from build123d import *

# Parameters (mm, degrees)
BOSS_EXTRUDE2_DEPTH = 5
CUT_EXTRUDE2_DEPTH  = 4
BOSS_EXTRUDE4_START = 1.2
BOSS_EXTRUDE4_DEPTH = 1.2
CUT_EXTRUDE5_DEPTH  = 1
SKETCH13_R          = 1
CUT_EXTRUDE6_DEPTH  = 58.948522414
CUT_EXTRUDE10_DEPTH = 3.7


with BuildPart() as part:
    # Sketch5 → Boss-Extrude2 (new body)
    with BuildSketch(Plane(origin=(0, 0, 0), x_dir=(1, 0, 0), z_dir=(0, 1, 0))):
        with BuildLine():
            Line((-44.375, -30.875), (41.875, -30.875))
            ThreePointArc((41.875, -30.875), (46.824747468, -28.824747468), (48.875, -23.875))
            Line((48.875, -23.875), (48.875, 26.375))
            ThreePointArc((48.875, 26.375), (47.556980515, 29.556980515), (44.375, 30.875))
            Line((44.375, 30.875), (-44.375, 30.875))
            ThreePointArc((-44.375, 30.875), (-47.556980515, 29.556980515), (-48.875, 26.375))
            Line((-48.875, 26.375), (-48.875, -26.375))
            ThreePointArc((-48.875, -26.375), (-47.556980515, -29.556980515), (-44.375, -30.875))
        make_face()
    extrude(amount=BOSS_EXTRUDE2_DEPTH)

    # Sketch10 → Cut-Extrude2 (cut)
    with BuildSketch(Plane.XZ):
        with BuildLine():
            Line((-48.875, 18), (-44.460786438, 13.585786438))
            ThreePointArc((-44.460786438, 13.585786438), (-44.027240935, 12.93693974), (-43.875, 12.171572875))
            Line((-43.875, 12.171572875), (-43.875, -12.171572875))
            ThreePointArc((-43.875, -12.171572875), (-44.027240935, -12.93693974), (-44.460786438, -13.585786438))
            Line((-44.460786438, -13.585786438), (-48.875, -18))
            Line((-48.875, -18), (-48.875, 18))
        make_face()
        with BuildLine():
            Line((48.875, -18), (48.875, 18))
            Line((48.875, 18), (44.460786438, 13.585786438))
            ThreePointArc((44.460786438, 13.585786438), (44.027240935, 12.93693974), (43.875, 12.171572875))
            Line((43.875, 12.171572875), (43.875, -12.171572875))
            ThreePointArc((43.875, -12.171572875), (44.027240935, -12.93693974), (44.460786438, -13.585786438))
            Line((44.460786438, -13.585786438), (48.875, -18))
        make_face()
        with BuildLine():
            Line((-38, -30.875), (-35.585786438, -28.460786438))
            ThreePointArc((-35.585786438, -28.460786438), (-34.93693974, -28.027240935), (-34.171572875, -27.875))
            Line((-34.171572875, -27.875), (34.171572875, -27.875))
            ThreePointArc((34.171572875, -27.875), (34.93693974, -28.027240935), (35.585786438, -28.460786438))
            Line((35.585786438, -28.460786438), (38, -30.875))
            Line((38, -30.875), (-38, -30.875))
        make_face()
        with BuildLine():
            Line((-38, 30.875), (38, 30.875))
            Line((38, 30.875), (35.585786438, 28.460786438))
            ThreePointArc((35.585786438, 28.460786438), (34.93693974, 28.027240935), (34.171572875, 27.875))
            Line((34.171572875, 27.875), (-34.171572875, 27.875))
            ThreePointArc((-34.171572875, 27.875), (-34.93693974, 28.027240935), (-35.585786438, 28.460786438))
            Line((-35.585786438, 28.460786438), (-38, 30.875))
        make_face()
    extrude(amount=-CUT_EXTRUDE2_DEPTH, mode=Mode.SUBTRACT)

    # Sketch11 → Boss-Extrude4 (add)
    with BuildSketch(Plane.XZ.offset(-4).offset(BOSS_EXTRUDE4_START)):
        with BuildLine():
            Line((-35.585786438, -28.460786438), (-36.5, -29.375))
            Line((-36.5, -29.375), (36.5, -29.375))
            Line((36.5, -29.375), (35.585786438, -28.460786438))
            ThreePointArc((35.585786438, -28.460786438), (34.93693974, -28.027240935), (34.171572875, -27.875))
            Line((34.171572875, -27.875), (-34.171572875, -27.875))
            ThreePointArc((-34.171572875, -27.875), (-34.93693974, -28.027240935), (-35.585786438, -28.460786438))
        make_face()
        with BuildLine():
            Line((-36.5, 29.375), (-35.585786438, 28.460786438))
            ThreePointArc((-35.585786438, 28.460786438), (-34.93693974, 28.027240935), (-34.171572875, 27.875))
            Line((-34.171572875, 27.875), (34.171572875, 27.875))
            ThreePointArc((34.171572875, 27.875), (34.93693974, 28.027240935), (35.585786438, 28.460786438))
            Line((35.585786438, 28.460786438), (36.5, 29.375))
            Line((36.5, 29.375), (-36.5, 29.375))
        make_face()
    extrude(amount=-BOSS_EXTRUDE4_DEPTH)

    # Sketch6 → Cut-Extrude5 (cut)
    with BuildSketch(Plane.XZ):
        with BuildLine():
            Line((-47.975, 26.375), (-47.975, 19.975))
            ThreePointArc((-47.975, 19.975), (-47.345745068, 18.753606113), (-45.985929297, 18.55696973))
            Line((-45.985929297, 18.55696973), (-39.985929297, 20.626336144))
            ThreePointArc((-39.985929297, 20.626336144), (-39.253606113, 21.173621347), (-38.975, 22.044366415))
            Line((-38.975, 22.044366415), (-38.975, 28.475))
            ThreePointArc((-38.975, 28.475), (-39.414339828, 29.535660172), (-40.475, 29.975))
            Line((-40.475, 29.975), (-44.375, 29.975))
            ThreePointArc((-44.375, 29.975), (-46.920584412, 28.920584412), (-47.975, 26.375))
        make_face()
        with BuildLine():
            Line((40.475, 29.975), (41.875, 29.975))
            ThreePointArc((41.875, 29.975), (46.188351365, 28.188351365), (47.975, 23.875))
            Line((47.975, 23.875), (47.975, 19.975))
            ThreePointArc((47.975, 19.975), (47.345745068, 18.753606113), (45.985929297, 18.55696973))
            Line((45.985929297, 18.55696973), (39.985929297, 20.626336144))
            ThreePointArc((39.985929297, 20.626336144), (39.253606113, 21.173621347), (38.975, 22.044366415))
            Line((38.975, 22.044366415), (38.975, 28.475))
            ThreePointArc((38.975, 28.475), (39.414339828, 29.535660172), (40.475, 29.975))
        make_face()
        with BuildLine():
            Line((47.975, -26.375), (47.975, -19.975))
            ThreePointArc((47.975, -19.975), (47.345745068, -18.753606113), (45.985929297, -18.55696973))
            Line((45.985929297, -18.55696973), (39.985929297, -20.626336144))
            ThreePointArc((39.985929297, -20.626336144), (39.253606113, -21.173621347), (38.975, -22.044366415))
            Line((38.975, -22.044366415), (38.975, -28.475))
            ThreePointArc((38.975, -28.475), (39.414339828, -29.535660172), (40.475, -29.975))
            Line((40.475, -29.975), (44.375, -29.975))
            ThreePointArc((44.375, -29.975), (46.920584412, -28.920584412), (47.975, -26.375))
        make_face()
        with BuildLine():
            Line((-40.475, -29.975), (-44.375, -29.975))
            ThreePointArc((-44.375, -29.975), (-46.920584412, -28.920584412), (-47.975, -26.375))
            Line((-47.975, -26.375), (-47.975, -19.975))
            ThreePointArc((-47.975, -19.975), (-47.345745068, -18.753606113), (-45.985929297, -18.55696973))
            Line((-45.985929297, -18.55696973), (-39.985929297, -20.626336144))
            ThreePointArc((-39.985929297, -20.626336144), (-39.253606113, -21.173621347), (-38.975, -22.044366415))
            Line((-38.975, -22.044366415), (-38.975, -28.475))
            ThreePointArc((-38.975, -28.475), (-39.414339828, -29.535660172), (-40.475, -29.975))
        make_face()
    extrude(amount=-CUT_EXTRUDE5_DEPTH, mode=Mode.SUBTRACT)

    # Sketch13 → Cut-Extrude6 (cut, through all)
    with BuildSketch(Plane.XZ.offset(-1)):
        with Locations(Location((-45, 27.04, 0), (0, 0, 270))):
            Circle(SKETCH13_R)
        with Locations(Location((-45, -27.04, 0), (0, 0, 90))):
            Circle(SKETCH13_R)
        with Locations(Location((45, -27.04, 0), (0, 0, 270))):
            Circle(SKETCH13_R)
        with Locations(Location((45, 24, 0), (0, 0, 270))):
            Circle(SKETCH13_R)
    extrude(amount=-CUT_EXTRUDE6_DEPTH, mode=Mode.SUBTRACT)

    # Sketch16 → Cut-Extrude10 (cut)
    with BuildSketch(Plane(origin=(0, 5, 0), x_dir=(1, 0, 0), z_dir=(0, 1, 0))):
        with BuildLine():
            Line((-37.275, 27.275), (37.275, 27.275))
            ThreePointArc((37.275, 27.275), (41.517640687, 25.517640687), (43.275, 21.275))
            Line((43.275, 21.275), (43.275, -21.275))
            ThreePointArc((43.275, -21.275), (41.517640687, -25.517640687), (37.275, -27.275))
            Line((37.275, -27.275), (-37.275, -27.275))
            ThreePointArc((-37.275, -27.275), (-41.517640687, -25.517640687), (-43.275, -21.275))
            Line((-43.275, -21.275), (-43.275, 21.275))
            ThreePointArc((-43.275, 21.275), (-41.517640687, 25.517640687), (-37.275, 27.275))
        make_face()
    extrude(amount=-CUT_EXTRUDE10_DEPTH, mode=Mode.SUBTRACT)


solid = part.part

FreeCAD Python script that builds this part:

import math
import FreeCAD as App
import Part
import Sketcher
from FreeCAD import Vector

doc = App.newDocument("Part")
body = doc.addObject("PartDesign::Body", "Body")

# Sketch on XZ plane
sketch1 = doc.addObject("Sketcher::SketchObject", "Sketch")
body.addObject(sketch1)
sketch1.AttachmentSupport = (doc.XZ_Plane, [""])
sketch1.MapMode = "FlatFace"
sketch1.addGeometry(Part.LineSegment(Vector(-44.4, 30.9, 0), Vector(41.9, 30.9, 0)), False)
sketch1.addGeometry(Part.ArcOfCircle(Part.Circle(Vector(41.9, 23.9, 0), Vector(0, 0, 1), 7), math.radians(0), math.radians(90)), False)
sketch1.addGeometry(Part.LineSegment(Vector(48.9, 23.9, 0), Vector(48.9, -26.4, 0)), False)
sketch1.addGeometry(Part.ArcOfCircle(Part.Circle(Vector(44.4, -26.4, 0), Vector(0, 0, 1), 4.5), math.radians(-90), math.radians(0)), False)
sketch1.addGeometry(Part.LineSegment(Vector(44.4, -30.9, 0), Vector(-44.4, -30.9, 0)), False)
sketch1.addGeometry(Part.ArcOfCircle(Part.Circle(Vector(-44.4, -26.4, 0), Vector(0, 0, 1), 4.5), math.radians(-180), math.radians(-90)), False)
sketch1.addGeometry(Part.LineSegment(Vector(-48.9, -26.4, 0), Vector(-48.9, 26.4, 0)), False)
sketch1.addGeometry(Part.ArcOfCircle(Part.Circle(Vector(-44.4, 26.4, 0), Vector(0, 0, 1), 4.5), math.radians(90), math.radians(180)), False)
sketch1.addConstraint(Sketcher.Constraint("Tangent", 0, 2, 1, 2))
sketch1.addConstraint(Sketcher.Constraint("Tangent", 1, 1, 2, 1))
sketch1.addConstraint(Sketcher.Constraint("Tangent", 2, 2, 3, 2))
sketch1.addConstraint(Sketcher.Constraint("Tangent", 3, 1, 4, 1))
sketch1.addConstraint(Sketcher.Constraint("Tangent", 4, 2, 5, 2))
sketch1.addConstraint(Sketcher.Constraint("Tangent", 5, 1, 6, 1))
sketch1.addConstraint(Sketcher.Constraint("Tangent", 6, 2, 7, 2))
sketch1.addConstraint(Sketcher.Constraint("Tangent", 7, 1, 0, 1))
sketch1.addConstraint(Sketcher.Constraint("Horizontal", 0))
sketch1.addConstraint(Sketcher.Constraint("Vertical", 2))
sketch1.addConstraint(Sketcher.Constraint("Horizontal", 4))
sketch1.addConstraint(Sketcher.Constraint("Vertical", 6))
sketch1.addConstraint(Sketcher.Constraint("Equal", 3, 5))
sketch1.addConstraint(Sketcher.Constraint("Equal", 5, 7))
sketch1.addConstraint(Sketcher.Constraint("Symmetric", 3, 3, 7, 3, -1, 1))
sketch1.addConstraint(Sketcher.Constraint("Radius", 1, 7.0))
sketch1.addConstraint(Sketcher.Constraint("Radius", 3, 4.5))
sketch1.addConstraint(Sketcher.Constraint("DistanceX", 0, 1, 0, 2, 86.25))
sketch1.addConstraint(Sketcher.Constraint("DistanceY", 2, 2, 2, 1, 50.25))
pad1 = doc.addObject("PartDesign::Pad", "Pad")
body.addObject(pad1)
pad1.Profile = sketch1
pad1.Length = 5
pad1.Reversed = True

# Sketch on XZ plane
sketch2 = doc.addObject("Sketcher::SketchObject", "Sketch001")
body.addObject(sketch2)
sketch2.AttachmentSupport = (doc.XZ_Plane, [""])
sketch2.MapMode = "FlatFace"
sketch2.addGeometry(Part.LineSegment(Vector(-44.5, 13.6, 0), Vector(-48.9, 18, 0)), False)
sketch2.addGeometry(Part.LineSegment(Vector(-48.9, 18, 0), Vector(-48.9, -18, 0)), False)
sketch2.addGeometry(Part.LineSegment(Vector(-48.9, -18, 0), Vector(-44.5, -13.6, 0)), False)
sketch2.addGeometry(Part.ArcOfCircle(Part.Circle(Vector(-45.9, -12.2, 0), Vector(0, 0, 1), 2), math.radians(-45), math.radians(0)), False)
sketch2.addGeometry(Part.LineSegment(Vector(-43.9, -12.2, 0), Vector(-43.9, 12.2, 0)), False)
sketch2.addGeometry(Part.ArcOfCircle(Part.Circle(Vector(-45.9, 12.2, 0), Vector(0, 0, 1), 2), math.radians(0), math.radians(45)), False)
sketch2.addGeometry(Part.LineSegment(Vector(48.9, -18, 0), Vector(48.9, 18, 0)), False)
sketch2.addGeometry(Part.LineSegment(Vector(48.9, 18, 0), Vector(44.5, 13.6, 0)), False)
sketch2.addGeometry(Part.ArcOfCircle(Part.Circle(Vector(45.9, 12.2, 0), Vector(0, 0, 1), 2), math.radians(135), math.radians(180)), False)
sketch2.addGeometry(Part.LineSegment(Vector(43.9, 12.2, 0), Vector(43.9, -12.2, 0)), False)
sketch2.addGeometry(Part.ArcOfCircle(Part.Circle(Vector(45.9, -12.2, 0), Vector(0, 0, 1), 2), math.radians(180), math.radians(225)), False)
sketch2.addGeometry(Part.LineSegment(Vector(44.5, -13.6, 0), Vector(48.9, -18, 0)), False)
sketch2.addGeometry(Part.LineSegment(Vector(-35.6, -28.5, 0), Vector(-38, -30.9, 0)), False)
sketch2.addGeometry(Part.LineSegment(Vector(-38, -30.9, 0), Vector(38, -30.9, 0)), False)
sketch2.addGeometry(Part.LineSegment(Vector(38, -30.9, 0), Vector(35.6, -28.5, 0)), False)
sketch2.addGeometry(Part.ArcOfCircle(Part.Circle(Vector(34.2, -29.9, 0), Vector(0, 0, 1), 2), math.radians(45), math.radians(90)), False)
sketch2.addGeometry(Part.LineSegment(Vector(34.2, -27.9, 0), Vector(-34.2, -27.9, 0)), False)
sketch2.addGeometry(Part.ArcOfCircle(Part.Circle(Vector(-34.2, -29.9, 0), Vector(0, 0, 1), 2), math.radians(90), math.radians(135)), False)
sketch2.addGeometry(Part.LineSegment(Vector(38, 30.9, 0), Vector(-38, 30.9, 0)), False)
sketch2.addGeometry(Part.LineSegment(Vector(-38, 30.9, 0), Vector(-35.6, 28.5, 0)), False)
sketch2.addGeometry(Part.ArcOfCircle(Part.Circle(Vector(-34.2, 29.9, 0), Vector(0, 0, 1), 2), math.radians(-135), math.radians(-90)), False)
sketch2.addGeometry(Part.LineSegment(Vector(-34.2, 27.9, 0), Vector(34.2, 27.9, 0)), False)
sketch2.addGeometry(Part.ArcOfCircle(Part.Circle(Vector(34.2, 29.9, 0), Vector(0, 0, 1), 2), math.radians(-90), math.radians(-45)), False)
sketch2.addGeometry(Part.LineSegment(Vector(35.6, 28.5, 0), Vector(38, 30.9, 0)), False)
sketch2.addConstraint(Sketcher.Constraint("Coincident", 0, 2, 1, 1))
sketch2.addConstraint(Sketcher.Constraint("Coincident", 1, 2, 2, 1))
sketch2.addConstraint(Sketcher.Constraint("Tangent", 2, 2, 3, 1))
sketch2.addConstraint(Sketcher.Constraint("Tangent", 3, 2, 4, 1))
sketch2.addConstraint(Sketcher.Constraint("Tangent", 4, 2, 5, 1))
sketch2.addConstraint(Sketcher.Constraint("Tangent", 5, 2, 0, 1))
sketch2.addConstraint(Sketcher.Constraint("Coincident", 6, 2, 7, 1))
sketch2.addConstraint(Sketcher.Constraint("Tangent", 7, 2, 8, 1))
sketch2.addConstraint(Sketcher.Constraint("Tangent", 8, 2, 9, 1))
sketch2.addConstraint(Sketcher.Constraint("Tangent", 9, 2, 10, 1))
sketch2.addConstraint(Sketcher.Constraint("Tangent", 10, 2, 11, 1))
sketch2.addConstraint(Sketcher.Constraint("Coincident", 11, 2, 6, 1))
sketch2.addConstraint(Sketcher.Constraint("Coincident", 12, 2, 13, 1))
sketch2.addConstraint(Sketcher.Constraint("Coincident", 13, 2, 14, 1))
sketch2.addConstraint(Sketcher.Constraint("Tangent", 14, 2, 15, 1))
sketch2.addConstraint(Sketcher.Constraint("Tangent", 15, 2, 16, 1))
sketch2.addConstraint(Sketcher.Constraint("Tangent", 16, 2, 17, 1))
sketch2.addConstraint(Sketcher.Constraint("Tangent", 17, 2, 12, 1))
sketch2.addConstraint(Sketcher.Constraint("Coincident", 18, 2, 19, 1))
sketch2.addConstraint(Sketcher.Constraint("Tangent", 19, 2, 20, 1))
sketch2.addConstraint(Sketcher.Constraint("Tangent", 20, 2, 21, 1))
sketch2.addConstraint(Sketcher.Constraint("Tangent", 21, 2, 22, 1))
sketch2.addConstraint(Sketcher.Constraint("Tangent", 22, 2, 23, 1))
sketch2.addConstraint(Sketcher.Constraint("Coincident", 23, 2, 18, 1))
sketch2.addConstraint(Sketcher.Constraint("Vertical", 1))
sketch2.addConstraint(Sketcher.Constraint("Vertical", 4))
sketch2.addConstraint(Sketcher.Constraint("Vertical", 6))
sketch2.addConstraint(Sketcher.Constraint("Vertical", 9))
sketch2.addConstraint(Sketcher.Constraint("Horizontal", 13))
sketch2.addConstraint(Sketcher.Constraint("Horizontal", 16))
sketch2.addConstraint(Sketcher.Constraint("Horizontal", 18))
sketch2.addConstraint(Sketcher.Constraint("Horizontal", 21))
sketch2.addConstraint(Sketcher.Constraint("Equal", 3, 5))
sketch2.addConstraint(Sketcher.Constraint("Equal", 5, 8))
sketch2.addConstraint(Sketcher.Constraint("Equal", 8, 10))
sketch2.addConstraint(Sketcher.Constraint("Equal", 10, 15))
sketch2.addConstraint(Sketcher.Constraint("Equal", 15, 17))
sketch2.addConstraint(Sketcher.Constraint("Equal", 17, 20))
sketch2.addConstraint(Sketcher.Constraint("Equal", 20, 22))
sketch2.addConstraint(Sketcher.Constraint("Symmetric", 3, 3, 8, 3, -1, 1))
sketch2.addConstraint(Sketcher.Constraint("Symmetric", 15, 3, 20, 3, -1, 1))
sketch2.addConstraint(Sketcher.Constraint("Symmetric", 1, 2, 6, 2, -1, 1))
sketch2.addConstraint(Sketcher.Constraint("Symmetric", 5, 2, 10, 2, -1, 1))
sketch2.addConstraint(Sketcher.Constraint("Symmetric", 13, 2, 18, 2, -1, 1))
sketch2.addConstraint(Sketcher.Constraint("Symmetric", 17, 2, 22, 2, -1, 1))
sketch2.addConstraint(Sketcher.Constraint("Symmetric", 5, 2, 7, 2, -2))
sketch2.addConstraint(Sketcher.Constraint("Symmetric", 14, 2, 17, 2, -2))
sketch2.addConstraint(Sketcher.Constraint("Perpendicular", 0, 2))
sketch2.addConstraint(Sketcher.Constraint("Perpendicular", 11, 12))
sketch2.addConstraint(Sketcher.Constraint("Radius", 3, 2.0))
sketch2.addConstraint(Sketcher.Constraint("DistanceX", 13, 1, 13, 2, 76.0))
sketch2.addConstraint(Sketcher.Constraint("DistanceY", 1, 2, 1, 1, 36.0))
sketch2.addConstraint(Sketcher.Constraint("DistanceX", 0, 2, 5, 3, 3.0))
sketch2.addConstraint(Sketcher.Constraint("DistanceY", 12, 2, 17, 3, 1.0))
sketch2.addConstraint(Sketcher.Constraint("DistanceX", 5, 3, 8, 3, 91.75))
sketch2.addConstraint(Sketcher.Constraint("DistanceY", 17, 3, 20, 3, 59.75))
pocket1 = doc.addObject("PartDesign::Pocket", "Pocket")
body.addObject(pocket1)
pocket1.Profile = sketch2
pocket1.Length = 4

# Sketch on XZ plane
sketch3 = doc.addObject("Sketcher::SketchObject", "Sketch002")
body.addObject(sketch3)
sketch3.AttachmentSupport = (doc.XZ_Plane, [""])
sketch3.MapMode = "FlatFace"
sketch3.AttachmentOffset = App.Placement(Vector(0, 0, -2.8), App.Rotation())
sketch3.addGeometry(Part.LineSegment(Vector(-35.6, -28.5, 0), Vector(-36.5, -29.4, 0)), False)
sketch3.addGeometry(Part.LineSegment(Vector(-36.5, -29.4, 0), Vector(36.5, -29.4, 0)), False)
sketch3.addGeometry(Part.LineSegment(Vector(36.5, -29.4, 0), Vector(35.6, -28.5, 0)), False)
sketch3.addGeometry(Part.ArcOfCircle(Part.Circle(Vector(34.2, -29.9, 0), Vector(0, 0, 1), 2), math.radians(45), math.radians(90)), False)
sketch3.addGeometry(Part.LineSegment(Vector(34.2, -27.9, 0), Vector(-34.2, -27.9, 0)), False)
sketch3.addGeometry(Part.ArcOfCircle(Part.Circle(Vector(-34.2, -29.9, 0), Vector(0, 0, 1), 2), math.radians(90), math.radians(135)), False)
sketch3.addGeometry(Part.LineSegment(Vector(-36.5, 29.4, 0), Vector(-35.6, 28.5, 0)), False)
sketch3.addGeometry(Part.ArcOfCircle(Part.Circle(Vector(-34.2, 29.9, 0), Vector(0, 0, 1), 2), math.radians(-135), math.radians(-90)), False)
sketch3.addGeometry(Part.LineSegment(Vector(-34.2, 27.9, 0), Vector(34.2, 27.9, 0)), False)
sketch3.addGeometry(Part.ArcOfCircle(Part.Circle(Vector(34.2, 29.9, 0), Vector(0, 0, 1), 2), math.radians(-90), math.radians(-45)), False)
sketch3.addGeometry(Part.LineSegment(Vector(35.6, 28.5, 0), Vector(36.5, 29.4, 0)), False)
sketch3.addGeometry(Part.LineSegment(Vector(36.5, 29.4, 0), Vector(-36.5, 29.4, 0)), False)
sketch3.addConstraint(Sketcher.Constraint("Coincident", 0, 2, 1, 1))
sketch3.addConstraint(Sketcher.Constraint("Coincident", 1, 2, 2, 1))
sketch3.addConstraint(Sketcher.Constraint("Tangent", 2, 2, 3, 1))
sketch3.addConstraint(Sketcher.Constraint("Tangent", 3, 2, 4, 1))
sketch3.addConstraint(Sketcher.Constraint("Tangent", 4, 2, 5, 1))
sketch3.addConstraint(Sketcher.Constraint("Tangent", 5, 2, 0, 1))
sketch3.addConstraint(Sketcher.Constraint("Tangent", 6, 2, 7, 1))
sketch3.addConstraint(Sketcher.Constraint("Tangent", 7, 2, 8, 1))
sketch3.addConstraint(Sketcher.Constraint("Tangent", 8, 2, 9, 1))
sketch3.addConstraint(Sketcher.Constraint("Tangent", 9, 2, 10, 1))
sketch3.addConstraint(Sketcher.Constraint("Coincident", 10, 2, 11, 1))
sketch3.addConstraint(Sketcher.Constraint("Coincident", 11, 2, 6, 1))
sketch3.addConstraint(Sketcher.Constraint("Horizontal", 1))
sketch3.addConstraint(Sketcher.Constraint("Horizontal", 4))
sketch3.addConstraint(Sketcher.Constraint("Horizontal", 8))
sketch3.addConstraint(Sketcher.Constraint("Horizontal", 11))
sketch3.addConstraint(Sketcher.Constraint("Equal", 3, 5))
sketch3.addConstraint(Sketcher.Constraint("Equal", 5, 7))
sketch3.addConstraint(Sketcher.Constraint("Equal", 7, 9))
sketch3.addConstraint(Sketcher.Constraint("Symmetric", 3, 3, 7, 3, -1, 1))
sketch3.addConstraint(Sketcher.Constraint("Symmetric", 5, 2, 9, 2, -1, 1))
sketch3.addConstraint(Sketcher.Constraint("Symmetric", 1, 2, 11, 2, -1, 1))
sketch3.addConstraint(Sketcher.Constraint("Symmetric", 2, 2, 5, 2, -2))
sketch3.addConstraint(Sketcher.Constraint("Perpendicular", 0, 2))
sketch3.addConstraint(Sketcher.Constraint("Radius", 3, 2.0))
sketch3.addConstraint(Sketcher.Constraint("DistanceX", 1, 1, 1, 2, 73.0))
sketch3.addConstraint(Sketcher.Constraint("DistanceY", 5, 3, 0, 2, 0.5))
sketch3.addConstraint(Sketcher.Constraint("DistanceY", 5, 3, 7, 3, 59.75))
pad2 = doc.addObject("PartDesign::Pad", "Pad001")
body.addObject(pad2)
pad2.Profile = sketch3
pad2.Length = 1.2
pad2.Reversed = True

# Sketch on XZ plane
sketch4 = doc.addObject("Sketcher::SketchObject", "Sketch003")
body.addObject(sketch4)
sketch4.AttachmentSupport = (doc.XZ_Plane, [""])
sketch4.MapMode = "FlatFace"
sketch4.addGeometry(Part.LineSegment(Vector(-48, 26.4, 0), Vector(-48, 20, 0)), False)
sketch4.addGeometry(Part.ArcOfCircle(Part.Circle(Vector(-46.5, 20, 0), Vector(0, 0, 1), 1.5), math.radians(180), math.radians(289)), False)
sketch4.addGeometry(Part.LineSegment(Vector(-46, 18.6, 0), Vector(-40, 20.6, 0)), False)
sketch4.addGeometry(Part.ArcOfCircle(Part.Circle(Vector(-40.5, 22, 0), Vector(0, 0, 1), 1.5), math.radians(-71), math.radians(0)), False)
sketch4.addGeometry(Part.LineSegment(Vector(-39, 22, 0), Vector(-39, 28.5, 0)), False)
sketch4.addGeometry(Part.ArcOfCircle(Part.Circle(Vector(-40.5, 28.5, 0), Vector(0, 0, 1), 1.5), math.radians(0), math.radians(90)), False)
sketch4.addGeometry(Part.LineSegment(Vector(-40.5, 30, 0), Vector(-44.4, 30, 0)), False)
sketch4.addGeometry(Part.ArcOfCircle(Part.Circle(Vector(-44.4, 26.4, 0), Vector(0, 0, 1), 3.6), math.radians(90), math.radians(180)), False)
sketch4.addGeometry(Part.LineSegment(Vector(41.9, 30, 0), Vector(40.5, 30, 0)), False)
sketch4.addGeometry(Part.ArcOfCircle(Part.Circle(Vector(40.5, 28.5, 0), Vector(0, 0, 1), 1.5), math.radians(90), math.radians(180)), False)
sketch4.addGeometry(Part.LineSegment(Vector(39, 28.5, 0), Vector(39, 22, 0)), False)
sketch4.addGeometry(Part.ArcOfCircle(Part.Circle(Vector(40.5, 22, 0), Vector(0, 0, 1), 1.5), math.radians(180), math.radians(251)), False)
sketch4.addGeometry(Part.LineSegment(Vector(40, 20.6, 0), Vector(46, 18.6, 0)), False)
sketch4.addGeometry(Part.ArcOfCircle(Part.Circle(Vector(46.5, 20, 0), Vector(0, 0, 1), 1.5), math.radians(-109), math.radians(0)), False)
sketch4.addGeometry(Part.LineSegment(Vector(48, 20, 0), Vector(48, 23.9, 0)), False)
sketch4.addGeometry(Part.ArcOfCircle(Part.Circle(Vector(41.9, 23.9, 0), Vector(0, 0, 1), 6.1), math.radians(0), math.radians(90)), False)
sketch4.addGeometry(Part.LineSegment(Vector(48, -26.4, 0), Vector(48, -20, 0)), False)
sketch4.addGeometry(Part.ArcOfCircle(Part.Circle(Vector(46.5, -20, 0), Vector(0, 0, 1), 1.5), math.radians(0), math.radians(109)), False)
sketch4.addGeometry(Part.LineSegment(Vector(46, -18.6, 0), Vector(40, -20.6, 0)), False)
sketch4.addGeometry(Part.ArcOfCircle(Part.Circle(Vector(40.5, -22, 0), Vector(0, 0, 1), 1.5), math.radians(109), math.radians(180)), False)
sketch4.addGeometry(Part.LineSegment(Vector(39, -22, 0), Vector(39, -28.5, 0)), False)
sketch4.addGeometry(Part.ArcOfCircle(Part.Circle(Vector(40.5, -28.5, 0), Vector(0, 0, 1), 1.5), math.radians(180), math.radians(270)), False)
sketch4.addGeometry(Part.LineSegment(Vector(40.5, -30, 0), Vector(44.4, -30, 0)), False)
sketch4.addGeometry(Part.ArcOfCircle(Part.Circle(Vector(44.4, -26.4, 0), Vector(0, 0, 1), 3.6), math.radians(-90), math.radians(0)), False)
sketch4.addGeometry(Part.LineSegment(Vector(-44.4, -30, 0), Vector(-40.5, -30, 0)), False)
sketch4.addGeometry(Part.ArcOfCircle(Part.Circle(Vector(-40.5, -28.5, 0), Vector(0, 0, 1), 1.5), math.radians(-90), math.radians(0)), False)
sketch4.addGeometry(Part.LineSegment(Vector(-39, -28.5, 0), Vector(-39, -22, 0)), False)
sketch4.addGeometry(Part.ArcOfCircle(Part.Circle(Vector(-40.5, -22, 0), Vector(0, 0, 1), 1.5), math.radians(0), math.radians(71)), False)
sketch4.addGeometry(Part.LineSegment(Vector(-40, -20.6, 0), Vector(-46, -18.6, 0)), False)
sketch4.addGeometry(Part.ArcOfCircle(Part.Circle(Vector(-46.5, -20, 0), Vector(0, 0, 1), 1.5), math.radians(71), math.radians(180)), False)
sketch4.addGeometry(Part.LineSegment(Vector(-48, -20, 0), Vector(-48, -26.4, 0)), False)
sketch4.addGeometry(Part.ArcOfCircle(Part.Circle(Vector(-44.4, -26.4, 0), Vector(0, 0, 1), 3.6), math.radians(-180), math.radians(-90)), False)
sketch4.addConstraint(Sketcher.Constraint("Tangent", 0, 2, 1, 1))
sketch4.addConstraint(Sketcher.Constraint("Tangent", 1, 2, 2, 1))
sketch4.addConstraint(Sketcher.Constraint("Tangent", 2, 2, 3, 1))
sketch4.addConstraint(Sketcher.Constraint("Tangent", 3, 2, 4, 1))
sketch4.addConstraint(Sketcher.Constraint("Tangent", 4, 2, 5, 1))
sketch4.addConstraint(Sketcher.Constraint("Tangent", 5, 2, 6, 1))
sketch4.addConstraint(Sketcher.Constraint("Tangent", 6, 2, 7, 1))
sketch4.addConstraint(Sketcher.Constraint("Tangent", 7, 2, 0, 1))
sketch4.addConstraint(Sketcher.Constraint("Tangent", 8, 2, 9, 1))
sketch4.addConstraint(Sketcher.Constraint("Tangent", 9, 2, 10, 1))
sketch4.addConstraint(Sketcher.Constraint("Tangent", 10, 2, 11, 1))
sketch4.addConstraint(Sketcher.Constraint("Tangent", 11, 2, 12, 1))
sketch4.addConstraint(Sketcher.Constraint("Tangent", 12, 2, 13, 1))
sketch4.addConstraint(Sketcher.Constraint("Tangent", 13, 2, 14, 1))
sketch4.addConstraint(Sketcher.Constraint("Tangent", 14, 2, 15, 1))
sketch4.addConstraint(Sketcher.Constraint("Tangent", 15, 2, 8, 1))
sketch4.addConstraint(Sketcher.Constraint("Tangent", 16, 2, 17, 1))
sketch4.addConstraint(Sketcher.Constraint("Tangent", 17, 2, 18, 1))
sketch4.addConstraint(Sketcher.Constraint("Tangent", 18, 2, 19, 1))
sketch4.addConstraint(Sketcher.Constraint("Tangent", 19, 2, 20, 1))
sketch4.addConstraint(Sketcher.Constraint("Tangent", 20, 2, 21, 1))
sketch4.addConstraint(Sketcher.Constraint("Tangent", 21, 2, 22, 1))
sketch4.addConstraint(Sketcher.Constraint("Tangent", 22, 2, 23, 1))
sketch4.addConstraint(Sketcher.Constraint("Tangent", 23, 2, 16, 1))
sketch4.addConstraint(Sketcher.Constraint("Tangent", 24, 2, 25, 1))
sketch4.addConstraint(Sketcher.Constraint("Tangent", 25, 2, 26, 1))
sketch4.addConstraint(Sketcher.Constraint("Tangent", 26, 2, 27, 1))
sketch4.addConstraint(Sketcher.Constraint("Tangent", 27, 2, 28, 1))
sketch4.addConstraint(Sketcher.Constraint("Tangent", 28, 2, 29, 1))
sketch4.addConstraint(Sketcher.Constraint("Tangent", 29, 2, 30, 1))
sketch4.addConstraint(Sketcher.Constraint("Tangent", 30, 2, 31, 1))
sketch4.addConstraint(Sketcher.Constraint("Tangent", 31, 2, 24, 1))
sketch4.addConstraint(Sketcher.Constraint("Vertical", 0))
sketch4.addConstraint(Sketcher.Constraint("Vertical", 4))
sketch4.addConstraint(Sketcher.Constraint("Horizontal", 6))
sketch4.addConstraint(Sketcher.Constraint("Horizontal", 8))
sketch4.addConstraint(Sketcher.Constraint("Vertical", 10))
sketch4.addConstraint(Sketcher.Constraint("Vertical", 14))
sketch4.addConstraint(Sketcher.Constraint("Vertical", 16))
sketch4.addConstraint(Sketcher.Constraint("Vertical", 20))
sketch4.addConstraint(Sketcher.Constraint("Horizontal", 22))
sketch4.addConstraint(Sketcher.Constraint("Horizontal", 24))
sketch4.addConstraint(Sketcher.Constraint("Vertical", 26))
sketch4.addConstraint(Sketcher.Constraint("Vertical", 30))
sketch4.addConstraint(Sketcher.Constraint("Equal", 1, 3))
sketch4.addConstraint(Sketcher.Constraint("Equal", 3, 5))
sketch4.addConstraint(Sketcher.Constraint("Equal", 5, 9))
sketch4.addConstraint(Sketcher.Constraint("Equal", 9, 11))
sketch4.addConstraint(Sketcher.Constraint("Equal", 11, 13))
sketch4.addConstraint(Sketcher.Constraint("Equal", 13, 17))
sketch4.addConstraint(Sketcher.Constraint("Equal", 17, 19))
sketch4.addConstraint(Sketcher.Constraint("Equal", 19, 21))
sketch4.addConstraint(Sketcher.Constraint("Equal", 7, 23))
sketch4.addConstraint(Sketcher.Constraint("Equal", 21, 25))
sketch4.addConstraint(Sketcher.Constraint("Equal", 25, 27))
sketch4.addConstraint(Sketcher.Constraint("Equal", 27, 29))
sketch4.addConstraint(Sketcher.Constraint("Equal", 23, 31))
sketch4.addConstraint(Sketcher.Constraint("Symmetric", 1, 3, 17, 3, -1, 1))
sketch4.addConstraint(Sketcher.Constraint("Symmetric", 3, 3, 19, 3, -1, 1))
sketch4.addConstraint(Sketcher.Constraint("Symmetric", 9, 3, 25, 3, -1, 1))
sketch4.addConstraint(Sketcher.Constraint("Symmetric", 13, 3, 29, 3, -1, 1))
sketch4.addConstraint(Sketcher.Constraint("Symmetric", 5, 3, 9, 3, -2))
sketch4.addConstraint(Sketcher.Constraint("Symmetric", 1, 3, 13, 3, -2))
sketch4.addConstraint(Sketcher.Constraint("Parallel", 12, 28))
sketch4.addConstraint(Sketcher.Constraint("Horizontal", 3, 3, 11, 3))
sketch4.addConstraint(Sketcher.Constraint("Horizontal", 21, 3, 25, 3))
sketch4.addConstraint(Sketcher.Constraint("Equal", 24, 14))
sketch4.addConstraint(Sketcher.Constraint("Radius", 1, 1.5))
sketch4.addConstraint(Sketcher.Constraint("Radius", 7, 3.6))
sketch4.addConstraint(Sketcher.Constraint("Radius", 15, 6.1))
sketch4.addConstraint(Sketcher.Constraint("DistanceX", 6, 2, 6, 1, 3.9))
sketch4.addConstraint(Sketcher.Constraint("DistanceX", 5, 3, 9, 3, 80.95))
sketch4.addConstraint(Sketcher.Constraint("DistanceY", 17, 3, 13, 3, 39.95))
sketch4.addConstraint(Sketcher.Constraint("DistanceY", 4, 1, 4, 2, 6.430634))
pocket2 = doc.addObject("PartDesign::Pocket", "Pocket001")
body.addObject(pocket2)
pocket2.Profile = sketch4
pocket2.Length = 1

# Sketch on XZ plane
sketch5 = doc.addObject("Sketcher::SketchObject", "Sketch004")
body.addObject(sketch5)
sketch5.AttachmentSupport = (doc.XZ_Plane, [""])
sketch5.MapMode = "FlatFace"
sketch5.AttachmentOffset = App.Placement(Vector(0, 0, -1), App.Rotation())
sketch5.addGeometry(Part.Circle(Vector(-45, 27, 0), Vector(0, 0, 1), 1), False)
sketch5.addGeometry(Part.Circle(Vector(-45, -27, 0), Vector(0, 0, 1), 1), False)
sketch5.addGeometry(Part.Circle(Vector(45, -27, 0), Vector(0, 0, 1), 1), False)
sketch5.addGeometry(Part.Circle(Vector(45, 24, 0), Vector(0, 0, 1), 1), False)
sketch5.addConstraint(Sketcher.Constraint("Equal", 0, 1))
sketch5.addConstraint(Sketcher.Constraint("Equal", 1, 2))
sketch5.addConstraint(Sketcher.Constraint("Equal", 2, 3))
sketch5.addConstraint(Sketcher.Constraint("Symmetric", 0, 3, 2, 3, -1, 1))
sketch5.addConstraint(Sketcher.Constraint("Symmetric", 1, 3, 2, 3, -2))
sketch5.addConstraint(Sketcher.Constraint("Vertical", 2, 3, 3, 3))
sketch5.addConstraint(Sketcher.Constraint("Diameter", 0, 2.0))
sketch5.addConstraint(Sketcher.Constraint("DistanceX", 0, 3, -1, 1, 45.0))
sketch5.addConstraint(Sketcher.Constraint("DistanceY", -1, 1, 3, 3, 24.0))
sketch5.addConstraint(Sketcher.Constraint("DistanceY", -1, 1, 0, 3, 27.04))
pocket3 = doc.addObject("PartDesign::Pocket", "Pocket002")
body.addObject(pocket3)
pocket3.Profile = sketch5
pocket3.Type = "ThroughAll"

# Sketch on XZ plane
sketch6 = doc.addObject("Sketcher::SketchObject", "Sketch005")
body.addObject(sketch6)
sketch6.AttachmentSupport = (doc.XZ_Plane, [""])
sketch6.MapMode = "FlatFace"
sketch6.AttachmentOffset = App.Placement(Vector(0, 0, -5), App.Rotation())
sketch6.addGeometry(Part.LineSegment(Vector(37, -27, 0), Vector(-37, -27, 0)), False)
sketch6.addGeometry(Part.ArcOfCircle(Part.Circle(Vector(-37, -21, 0), Vector(0, 0, 1), 6), math.radians(180), math.radians(270)), False)
sketch6.addGeometry(Part.LineSegment(Vector(-43, -21, 0), Vector(-43, 21, 0)), False)
sketch6.addGeometry(Part.ArcOfCircle(Part.Circle(Vector(-37, 21, 0), Vector(0, 0, 1), 6), math.radians(90), math.radians(180)), False)
sketch6.addGeometry(Part.LineSegment(Vector(-37, 27, 0), Vector(37, 27, 0)), False)
sketch6.addGeometry(Part.ArcOfCircle(Part.Circle(Vector(37, 21, 0), Vector(0, 0, 1), 6), math.radians(0), math.radians(90)), False)
sketch6.addGeometry(Part.LineSegment(Vector(43, 21, 0), Vector(43, -21, 0)), False)
sketch6.addGeometry(Part.ArcOfCircle(Part.Circle(Vector(37, -21, 0), Vector(0, 0, 1), 6), math.radians(-90), math.radians(0)), False)
sketch6.addConstraint(Sketcher.Constraint("Tangent", 0, 2, 1, 2))
sketch6.addConstraint(Sketcher.Constraint("Tangent", 1, 1, 2, 1))
sketch6.addConstraint(Sketcher.Constraint("Tangent", 2, 2, 3, 2))
sketch6.addConstraint(Sketcher.Constraint("Tangent", 3, 1, 4, 1))
sketch6.addConstraint(Sketcher.Constraint("Tangent", 4, 2, 5, 2))
sketch6.addConstraint(Sketcher.Constraint("Tangent", 5, 1, 6, 1))
sketch6.addConstraint(Sketcher.Constraint("Tangent", 6, 2, 7, 2))
sketch6.addConstraint(Sketcher.Constraint("Tangent", 7, 1, 0, 1))
sketch6.addConstraint(Sketcher.Constraint("Horizontal", 0))
sketch6.addConstraint(Sketcher.Constraint("Vertical", 2))
sketch6.addConstraint(Sketcher.Constraint("Horizontal", 4))
sketch6.addConstraint(Sketcher.Constraint("Vertical", 6))
sketch6.addConstraint(Sketcher.Constraint("Equal", 1, 3))
sketch6.addConstraint(Sketcher.Constraint("Equal", 3, 5))
sketch6.addConstraint(Sketcher.Constraint("Equal", 5, 7))
sketch6.addConstraint(Sketcher.Constraint("Symmetric", 1, 3, 5, 3, -1, 1))
sketch6.addConstraint(Sketcher.Constraint("Radius", 1, 6.0))
sketch6.addConstraint(Sketcher.Constraint("DistanceX", 0, 2, 0, 1, 74.55))
sketch6.addConstraint(Sketcher.Constraint("DistanceY", 2, 1, 2, 2, 42.55))
pocket4 = doc.addObject("PartDesign::Pocket", "Pocket003")
body.addObject(pocket4)
pocket4.Profile = sketch6
pocket4.Length = 3.7
pocket4.Reversed = True

doc.recompute()
